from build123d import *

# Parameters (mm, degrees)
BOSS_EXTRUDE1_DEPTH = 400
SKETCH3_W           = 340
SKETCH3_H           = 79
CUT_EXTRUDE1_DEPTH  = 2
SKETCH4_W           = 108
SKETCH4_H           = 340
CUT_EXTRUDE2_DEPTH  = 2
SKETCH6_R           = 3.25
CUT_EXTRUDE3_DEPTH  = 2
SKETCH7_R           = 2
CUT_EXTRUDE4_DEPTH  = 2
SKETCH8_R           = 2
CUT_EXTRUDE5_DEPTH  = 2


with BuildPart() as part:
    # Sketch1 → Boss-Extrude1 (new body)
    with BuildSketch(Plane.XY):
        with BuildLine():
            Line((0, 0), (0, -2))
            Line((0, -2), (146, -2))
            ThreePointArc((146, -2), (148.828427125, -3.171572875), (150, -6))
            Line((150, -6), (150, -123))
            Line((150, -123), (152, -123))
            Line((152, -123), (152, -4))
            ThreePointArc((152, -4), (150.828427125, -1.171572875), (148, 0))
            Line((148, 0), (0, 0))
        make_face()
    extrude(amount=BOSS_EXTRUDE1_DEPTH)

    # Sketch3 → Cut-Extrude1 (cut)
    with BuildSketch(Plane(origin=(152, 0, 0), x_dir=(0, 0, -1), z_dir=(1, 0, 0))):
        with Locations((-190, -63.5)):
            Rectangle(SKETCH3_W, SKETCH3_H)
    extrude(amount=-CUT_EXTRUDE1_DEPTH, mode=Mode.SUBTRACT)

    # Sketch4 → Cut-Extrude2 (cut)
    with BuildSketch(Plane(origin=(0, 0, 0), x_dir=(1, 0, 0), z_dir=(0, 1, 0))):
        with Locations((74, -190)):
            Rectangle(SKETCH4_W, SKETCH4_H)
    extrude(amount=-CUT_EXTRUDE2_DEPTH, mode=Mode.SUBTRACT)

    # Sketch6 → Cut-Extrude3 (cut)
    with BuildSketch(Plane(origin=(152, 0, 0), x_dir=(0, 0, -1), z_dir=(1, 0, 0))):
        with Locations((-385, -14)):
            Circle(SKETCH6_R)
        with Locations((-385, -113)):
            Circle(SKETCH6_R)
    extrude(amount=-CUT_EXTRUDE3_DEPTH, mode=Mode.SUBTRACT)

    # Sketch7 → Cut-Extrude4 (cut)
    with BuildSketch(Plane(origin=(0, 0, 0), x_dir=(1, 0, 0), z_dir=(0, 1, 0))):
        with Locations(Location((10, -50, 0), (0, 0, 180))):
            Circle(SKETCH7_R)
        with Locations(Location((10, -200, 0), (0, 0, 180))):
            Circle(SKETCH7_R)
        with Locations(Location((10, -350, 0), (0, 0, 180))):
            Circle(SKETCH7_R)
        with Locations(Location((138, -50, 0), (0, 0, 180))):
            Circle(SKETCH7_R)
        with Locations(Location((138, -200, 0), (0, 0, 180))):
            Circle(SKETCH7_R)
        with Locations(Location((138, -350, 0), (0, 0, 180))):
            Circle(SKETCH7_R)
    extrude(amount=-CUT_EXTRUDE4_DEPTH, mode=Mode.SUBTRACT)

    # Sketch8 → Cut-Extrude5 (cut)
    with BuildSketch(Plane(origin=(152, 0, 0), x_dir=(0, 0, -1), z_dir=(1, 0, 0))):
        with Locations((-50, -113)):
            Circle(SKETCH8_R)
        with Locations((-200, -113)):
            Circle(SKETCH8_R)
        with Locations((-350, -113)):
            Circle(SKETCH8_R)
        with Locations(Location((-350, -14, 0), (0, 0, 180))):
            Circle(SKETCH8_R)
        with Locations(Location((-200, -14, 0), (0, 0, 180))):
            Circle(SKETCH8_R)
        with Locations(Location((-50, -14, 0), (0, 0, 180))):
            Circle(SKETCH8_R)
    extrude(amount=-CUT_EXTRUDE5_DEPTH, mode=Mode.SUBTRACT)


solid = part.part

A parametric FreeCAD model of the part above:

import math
import FreeCAD as App
import Part
import Sketcher
Q = App.Units.Quantity

doc = App.newDocument("Part")
params = doc.addObject("Spreadsheet::Sheet", "Params")
for row, (alias, value) in enumerate([
    ("sketch1_radius", "4 mm"),
    ("sketch1_width", "146 mm"),
    ("sketch1_width2", "2 mm"),
    ("sketch1_height", "117 mm"),
    ("pad1_length", "400 mm"),
    ("sketch2_width", "79 mm"),
    ("sketch2_height", "340 mm"),
    ("pocket1_length", "2 mm"),
    ("sketch3_width", "108 mm"),
    ("sketch3_height", "340 mm"),
    ("pocket2_length", "2 mm"),
    ("sketch4_diameter", "6.5 mm"),
    ("pocket3_length", "2 mm"),
    ("sketch5_diameter", "4 mm"),
    ("pocket4_length", "2 mm"),
    ("sketch6_diameter", "4 mm"),
    ("pocket5_length", "2 mm"),
], start=1):
    params.set(f"A{row}", alias)
    params.set(f"B{row}", "=" + value)
    params.setAlias(f"B{row}", alias)

body = doc.addObject("PartDesign::Body", "Body")

# Sketch on XY plane
sketch1 = body.newObject("Sketcher::SketchObject", "Sketch")
sketch1.AttachmentSupport = (doc.getObject("XY_Plane"), [""])
sketch1.MapMode = "FlatFace"
sketch1.addGeometry(Part.LineSegment(App.Vector(0, 0, 0), App.Vector(0, -2, 0)), False)
sketch1.addGeometry(Part.LineSegment(App.Vector(0, -2, 0), App.Vector(146, -2, 0)), False)
sketch1.addGeometry(Part.ArcOfCircle(Part.Circle(App.Vector(146, -6, 0), App.Vector(0, 0, 1), 4), math.radians(0), math.radians(90)), False)
sketch1.addGeometry(Part.LineSegment(App.Vector(150, -6, 0), App.Vector(150, -123, 0)), False)
sketch1.addGeometry(Part.LineSegment(App.Vector(150, -123, 0), App.Vector(152, -123, 0)), False)
sketch1.addGeometry(Part.LineSegment(App.Vector(152, -123, 0), App.Vector(152, -4, 0)), False)
sketch1.addGeometry(Part.ArcOfCircle(Part.Circle(App.Vector(148, -4, 0), App.Vector(0, 0, 1), 4), math.radians(0), math.radians(90)), False)
sketch1.addGeometry(Part.LineSegment(App.Vector(148, 0, 0), App.Vector(0, 0, 0)), False)
sketch1.addConstraint(Sketcher.Constraint("Coincident", 0, 2, 1, 1))
sketch1.addConstraint(Sketcher.Constraint("Tangent", 1, 2, 2, 2))
sketch1.addConstraint(Sketcher.Constraint("Tangent", 2, 1, 3, 1))
sketch1.addConstraint(Sketcher.Constraint("Coincident", 3, 2, 4, 1))
sketch1.addConstraint(Sketcher.Constraint("Coincident", 4, 2, 5, 1))
sketch1.addConstraint(Sketcher.Constraint("Tangent", 5, 2, 6, 1))
sketch1.addConstraint(Sketcher.Constraint("Tangent", 6, 2, 7, 1))
sketch1.addConstraint(Sketcher.Constraint("Coincident", 7, 2, 0, 1))
sketch1.addConstraint(Sketcher.Constraint("Vertical", 0))
sketch1.addConstraint(Sketcher.Constraint("Horizontal", 1))
sketch1.addConstraint(Sketcher.Constraint("Vertical", 3))
sketch1.addConstraint(Sketcher.Constraint("Horizontal", 4))
sketch1.addConstraint(Sketcher.Constraint("Vertical", 5))
sketch1.addConstraint(Sketcher.Constraint("Horizontal", 7))
sketch1.addConstraint(Sketcher.Constraint("Coincident", 7, 2, -1, 1))
sketch1.addConstraint(Sketcher.Constraint("Equal", 2, 6))
sketch1.addConstraint(Sketcher.Constraint("Equal", 4, 0))
sketch1.addConstraint(Sketcher.Constraint("Radius", 2, Q("4 mm")))
sketch1.addConstraint(Sketcher.Constraint("DistanceX", 1, 1, 1, 2, Q("146 mm")))
sketch1.addConstraint(Sketcher.Constraint("DistanceX", 4, 1, 4, 2, Q("2 mm")))
sketch1.addConstraint(Sketcher.Constraint("DistanceY", 3, 2, 3, 1, Q("117 mm")))
sketch1.setExpression("Constraints[17]", "Params.sketch1_radius")
sketch1.setExpression("Constraints[18]", "Params.sketch1_width")
sketch1.setExpression("Constraints[19]", "Params.sketch1_width2")
sketch1.setExpression("Constraints[20]", "Params.sketch1_height")
pad1 = body.newObject("PartDesign::Pad", "Pad")
pad1.Profile = sketch1
pad1.setExpression("Length", "Params.pad1_length")

# Sketch on YZ plane
sketch2 = body.newObject("Sketcher::SketchObject", "Sketch001")
sketch2.AttachmentSupport = (doc.getObject("YZ_Plane"), [""])
sketch2.MapMode = "FlatFace"
sketch2.AttachmentOffset = App.Placement(App.Vector(0, 0, 152), App.Rotation())
sketch2.addGeometry(Part.LineSegment(App.Vector(-24, 360, 0), App.Vector(-103, 360, 0)), False)
sketch2.addGeometry(Part.LineSegment(App.Vector(-103, 360, 0), App.Vector(-103, 20, 0)), False)
sketch2.addGeometry(Part.LineSegment(App.Vector(-103, 20, 0), App.Vector(-24, 20, 0)), False)
sketch2.addGeometry(Part.LineSegment(App.Vector(-24, 20, 0), App.Vector(-24, 360, 0)), False)
sketch2.addConstraint(Sketcher.Constraint("Coincident", 0, 2, 1, 1))
sketch2.addConstraint(Sketcher.Constraint("Coincident", 1, 2, 2, 1))
sketch2.addConstraint(Sketcher.Constraint("Coincident", 2, 2, 3, 1))
sketch2.addConstraint(Sketcher.Constraint("Coincident", 3, 2, 0, 1))
sketch2.addConstraint(Sketcher.Constraint("Horizontal", 0))
sketch2.addConstraint(Sketcher.Constraint("Vertical", 1))
sketch2.addConstraint(Sketcher.Constraint("Horizontal", 2))
sketch2.addConstraint(Sketcher.Constraint("Vertical", 3))
sketch2.addConstraint(Sketcher.Constraint("DistanceX", 0, 2, 0, 1, Q("79 mm")))
sketch2.addConstraint(Sketcher.Constraint("DistanceY", 1, 2, 1, 1, Q("340 mm")))
sketch2.addConstraint(Sketcher.Constraint("DistanceX", 0, 2, -1, 1, Q("103 mm")))
sketch2.addConstraint(Sketcher.Constraint("DistanceY", -1, 1, 0, 2, Q("360 mm")))
sketch2.setExpression("Constraints[8]", "Params.sketch2_width")
sketch2.setExpression("Constraints[9]", "Params.sketch2_height")
pocket1 = body.newObject("PartDesign::Pocket", "Pocket")
pocket1.Profile = sketch2
pocket1.setExpression("Length", "Params.pocket1_length")

# Sketch on XZ plane
sketch3 = body.newObject("Sketcher::SketchObject", "Sketch002")
sketch3.AttachmentSupport = (doc.getObject("XZ_Plane"), [""])
sketch3.MapMode = "FlatFace"
sketch3.addGeometry(Part.LineSegment(App.Vector(20, 20, 0), App.Vector(20, 360, 0)), False)
sketch3.addGeometry(Part.LineSegment(App.Vector(20, 360, 0), App.Vector(128, 360, 0)), False)
sketch3.addGeometry(Part.LineSegment(App.Vector(128, 360, 0), App.Vector(128, 20, 0)), False)
sketch3.addGeometry(Part.LineSegment(App.Vector(128, 20, 0), App.Vector(20, 20, 0)), False)
sketch3.addConstraint(Sketcher.Constraint("Coincident", 0, 2, 1, 1))
sketch3.addConstraint(Sketcher.Constraint("Coincident", 1, 2, 2, 1))
sketch3.addConstraint(Sketcher.Constraint("Coincident", 2, 2, 3, 1))
sketch3.addConstraint(Sketcher.Constraint("Coincident", 3, 2, 0, 1))
sketch3.addConstraint(Sketcher.Constraint("Vertical", 0))
sketch3.addConstraint(Sketcher.Constraint("Horizontal", 1))
sketch3.addConstraint(Sketcher.Constraint("Vertical", 2))
sketch3.addConstraint(Sketcher.Constraint("Horizontal", 3))
sketch3.addConstraint(Sketcher.Constraint("DistanceX", 1, 1, 1, 2, Q("108 mm")))
sketch3.addConstraint(Sketcher.Constraint("DistanceY", 0, 1, 0, 2, Q("340 mm")))
sketch3.addConstraint(Sketcher.Constraint("DistanceX", -1, 1, 0, 2, Q("20 mm")))
sketch3.addConstraint(Sketcher.Constraint("DistanceY", -1, 1, 0, 2, Q("360 mm")))
sketch3.setExpression("Constraints[8]", "Params.sketch3_width")
sketch3.setExpression("Constraints[9]", "Params.sketch3_height")
pocket2 = body.newObject("PartDesign::Pocket", "Pocket001")
pocket2.Profile = sketch3
pocket2.setExpression("Length", "Params.pocket2_length")
pocket2.Reversed = True

# Sketch on YZ plane
sketch4 = body.newObject("Sketcher::SketchObject", "Sketch003")
sketch4.AttachmentSupport = (doc.getObject("YZ_Plane"), [""])
sketch4.MapMode = "FlatFace"
sketch4.AttachmentOffset = App.Placement(App.Vector(0, 0, 152), App.Rotation())
sketch4.addGeometry(Part.Circle(App.Vector(-14, 385, 0), App.Vector(0, 0, 1), 3.25), False)
sketch4.addGeometry(Part.Circle(App.Vector(-113, 385, 0), App.Vector(0, 0, 1), 3.25), False)
sketch4.addConstraint(Sketcher.Constraint("Equal", 0, 1))
sketch4.addConstraint(Sketcher.Constraint("Horizontal", 0, 3, 1, 3))
sketch4.addConstraint(Sketcher.Constraint("Diameter", 0, Q("6.5 mm")))
sketch4.addConstraint(Sketcher.Constraint("DistanceX", 0, 3, -1, 1, Q("14 mm")))
sketch4.addConstraint(Sketcher.Constraint("DistanceY", -1, 1, 0, 3, Q("385 mm")))
sketch4.addConstraint(Sketcher.Constraint("DistanceX", 1, 3, -1, 1, Q("113 mm")))
sketch4.setExpression("Constraints[2]", "Params.sketch4_diameter")
pocket3 = body.newObject("PartDesign::Pocket", "Pocket002")
pocket3.Profile = sketch4
pocket3.setExpression("Length", "Params.pocket3_length")

# Sketch on XZ plane
sketch5 = body.newObject("Sketcher::SketchObject", "Sketch004")
sketch5.AttachmentSupport = (doc.getObject("XZ_Plane"), [""])
sketch5.MapMode = "FlatFace"
sketch5.addGeometry(Part.Circle(App.Vector(10, 50, 0), App.Vector(0, 0, 1), 2), False)
sketch5.addGeometry(Part.Circle(App.Vector(10, 200, 0), App.Vector(0, 0, 1), 2), False)
sketch5.addGeometry(Part.Circle(App.Vector(10, 350, 0), App.Vector(0, 0, 1), 2), False)
sketch5.addGeometry(Part.Circle(App.Vector(138, 50, 0), App.Vector(0, 0, 1), 2), False)
sketch5.addGeometry(Part.Circle(App.Vector(138, 200, 0), App.Vector(0, 0, 1), 2), False)
sketch5.addGeometry(Part.Circle(App.Vector(138, 350, 0), App.Vector(0, 0, 1), 2), False)
sketch5.addConstraint(Sketcher.Constraint("Equal", 0, 1))
sketch5.addConstraint(Sketcher.Constraint("Equal", 1, 2))
sketch5.addConstraint(Sketcher.Constraint("Equal", 2, 3))
sketch5.addConstraint(Sketcher.Constraint("Equal", 3, 4))
sketch5.addConstraint(Sketcher.Constraint("Equal", 4, 5))
sketch5.addConstraint(Sketcher.Constraint("Horizontal", 0, 3, 3, 3))
sketch5.addConstraint(Sketcher.Constraint("Horizontal", 1, 3, 4, 3))
sketch5.addConstraint(Sketcher.Constraint("Horizontal", 2, 3, 5, 3))
sketch5.addConstraint(Sketcher.Constraint("Vertical", 0, 3, 1, 3))
sketch5.addConstraint(Sketcher.Constraint("Vertical", 1, 3, 2, 3))
sketch5.addConstraint(Sketcher.Constraint("Vertical", 3, 3, 4, 3))
sketch5.addConstraint(Sketcher.Constraint("Vertical", 4, 3, 5, 3))
sketch5.addConstraint(Sketcher.Constraint("Diameter", 0, Q("4 mm")))
sketch5.addConstraint(Sketcher.Constraint("DistanceX", -1, 1, 0, 3, Q("10 mm")))
sketch5.addConstraint(Sketcher.Constraint("DistanceY", -1, 1, 0, 3, Q("50 mm")))
sketch5.addConstraint(Sketcher.Constraint("DistanceY", -1, 1, 1, 3, Q("200 mm")))
sketch5.addConstraint(Sketcher.Constraint("DistanceY", -1, 1, 2, 3, Q("350 mm")))
sketch5.addConstraint(Sketcher.Constraint("DistanceX", -1, 1, 3, 3, Q("138 mm")))
sketch5.setExpression("Constraints[12]", "Params.sketch5_diameter")
pocket4 = body.newObject("PartDesign::Pocket", "Pocket003")
pocket4.Profile = sketch5
pocket4.setExpression("Length", "Params.pocket4_length")
pocket4.Reversed = True

# Sketch on YZ plane
sketch6 = body.newObject("Sketcher::SketchObject", "Sketch005")
sketch6.AttachmentSupport = (doc.getObject("YZ_Plane"), [""])
sketch6.MapMode = "FlatFace"
sketch6.AttachmentOffset = App.Placement(App.Vector(0, 0, 152), App.Rotation())
sketch6.addGeometry(Part.Circle(App.Vector(-113, 50, 0), App.Vector(0, 0, 1), 2), False)
sketch6.addGeometry(Part.Circle(App.Vector(-113, 200, 0), App.Vector(0, 0, 1), 2), False)
sketch6.addGeometry(Part.Circle(App.Vector(-113, 350, 0), App.Vector(0, 0, 1), 2), False)
sketch6.addGeometry(Part.Circle(App.Vector(-14, 350, 0), App.Vector(0, 0, 1), 2), False)
sketch6.addGeometry(Part.Circle(App.Vector(-14, 200, 0), App.Vector(0, 0, 1), 2), False)
sketch6.addGeometry(Part.Circle(App.Vector(-14, 50, 0), App.Vector(0, 0, 1), 2), False)
sketch6.addConstraint(Sketcher.Constraint("Equal", 0, 1))
sketch6.addConstraint(Sketcher.Constraint("Equal", 1, 2))
sketch6.addConstraint(Sketcher.Constraint("Equal", 2, 3))
sketch6.addConstraint(Sketcher.Constraint("Equal", 3, 4))
sketch6.addConstraint(Sketcher.Constraint("Equal", 4, 5))
sketch6.addConstraint(Sketcher.Constraint("Horizontal", 2, 3, 3, 3))
sketch6.addConstraint(Sketcher.Constraint("Horizontal", 1, 3, 4, 3))
sketch6.addConstraint(Sketcher.Constraint("Horizontal", 0, 3, 5, 3))
sketch6.addConstraint(Sketcher.Constraint("Vertical", 0, 3, 1, 3))
sketch6.addConstraint(Sketcher.Constraint("Vertical", 1, 3, 2, 3))
sketch6.addConstraint(Sketcher.Constraint("Vertical", 3, 3, 4, 3))
sketch6.addConstraint(Sketcher.Constraint("Vertical", 4, 3, 5, 3))
sketch6.addConstraint(Sketcher.Constraint("Diameter", 0, Q("4 mm")))
sketch6.addConstraint(Sketcher.Constraint("DistanceX", 0, 3, -1, 1, Q("113 mm")))
sketch6.addConstraint(Sketcher.Constraint("DistanceY", -1, 1, 0, 3, Q("50 mm")))
sketch6.addConstraint(Sketcher.Constraint("DistanceY", -1, 1, 1, 3, Q("200 mm")))
sketch6.addConstraint(Sketcher.Constraint("DistanceY", -1, 1, 2, 3, Q("350 mm")))
sketch6.addConstraint(Sketcher.Constraint("DistanceX", 3, 3, -1, 1, Q("14 mm")))
sketch6.setExpression("Constraints[12]", "Params.sketch6_diameter")
pocket5 = body.newObject("PartDesign::Pocket", "Pocket004")
pocket5.Profile = sketch6
pocket5.setExpression("Length", "Params.pocket5_length")

doc.recompute()
